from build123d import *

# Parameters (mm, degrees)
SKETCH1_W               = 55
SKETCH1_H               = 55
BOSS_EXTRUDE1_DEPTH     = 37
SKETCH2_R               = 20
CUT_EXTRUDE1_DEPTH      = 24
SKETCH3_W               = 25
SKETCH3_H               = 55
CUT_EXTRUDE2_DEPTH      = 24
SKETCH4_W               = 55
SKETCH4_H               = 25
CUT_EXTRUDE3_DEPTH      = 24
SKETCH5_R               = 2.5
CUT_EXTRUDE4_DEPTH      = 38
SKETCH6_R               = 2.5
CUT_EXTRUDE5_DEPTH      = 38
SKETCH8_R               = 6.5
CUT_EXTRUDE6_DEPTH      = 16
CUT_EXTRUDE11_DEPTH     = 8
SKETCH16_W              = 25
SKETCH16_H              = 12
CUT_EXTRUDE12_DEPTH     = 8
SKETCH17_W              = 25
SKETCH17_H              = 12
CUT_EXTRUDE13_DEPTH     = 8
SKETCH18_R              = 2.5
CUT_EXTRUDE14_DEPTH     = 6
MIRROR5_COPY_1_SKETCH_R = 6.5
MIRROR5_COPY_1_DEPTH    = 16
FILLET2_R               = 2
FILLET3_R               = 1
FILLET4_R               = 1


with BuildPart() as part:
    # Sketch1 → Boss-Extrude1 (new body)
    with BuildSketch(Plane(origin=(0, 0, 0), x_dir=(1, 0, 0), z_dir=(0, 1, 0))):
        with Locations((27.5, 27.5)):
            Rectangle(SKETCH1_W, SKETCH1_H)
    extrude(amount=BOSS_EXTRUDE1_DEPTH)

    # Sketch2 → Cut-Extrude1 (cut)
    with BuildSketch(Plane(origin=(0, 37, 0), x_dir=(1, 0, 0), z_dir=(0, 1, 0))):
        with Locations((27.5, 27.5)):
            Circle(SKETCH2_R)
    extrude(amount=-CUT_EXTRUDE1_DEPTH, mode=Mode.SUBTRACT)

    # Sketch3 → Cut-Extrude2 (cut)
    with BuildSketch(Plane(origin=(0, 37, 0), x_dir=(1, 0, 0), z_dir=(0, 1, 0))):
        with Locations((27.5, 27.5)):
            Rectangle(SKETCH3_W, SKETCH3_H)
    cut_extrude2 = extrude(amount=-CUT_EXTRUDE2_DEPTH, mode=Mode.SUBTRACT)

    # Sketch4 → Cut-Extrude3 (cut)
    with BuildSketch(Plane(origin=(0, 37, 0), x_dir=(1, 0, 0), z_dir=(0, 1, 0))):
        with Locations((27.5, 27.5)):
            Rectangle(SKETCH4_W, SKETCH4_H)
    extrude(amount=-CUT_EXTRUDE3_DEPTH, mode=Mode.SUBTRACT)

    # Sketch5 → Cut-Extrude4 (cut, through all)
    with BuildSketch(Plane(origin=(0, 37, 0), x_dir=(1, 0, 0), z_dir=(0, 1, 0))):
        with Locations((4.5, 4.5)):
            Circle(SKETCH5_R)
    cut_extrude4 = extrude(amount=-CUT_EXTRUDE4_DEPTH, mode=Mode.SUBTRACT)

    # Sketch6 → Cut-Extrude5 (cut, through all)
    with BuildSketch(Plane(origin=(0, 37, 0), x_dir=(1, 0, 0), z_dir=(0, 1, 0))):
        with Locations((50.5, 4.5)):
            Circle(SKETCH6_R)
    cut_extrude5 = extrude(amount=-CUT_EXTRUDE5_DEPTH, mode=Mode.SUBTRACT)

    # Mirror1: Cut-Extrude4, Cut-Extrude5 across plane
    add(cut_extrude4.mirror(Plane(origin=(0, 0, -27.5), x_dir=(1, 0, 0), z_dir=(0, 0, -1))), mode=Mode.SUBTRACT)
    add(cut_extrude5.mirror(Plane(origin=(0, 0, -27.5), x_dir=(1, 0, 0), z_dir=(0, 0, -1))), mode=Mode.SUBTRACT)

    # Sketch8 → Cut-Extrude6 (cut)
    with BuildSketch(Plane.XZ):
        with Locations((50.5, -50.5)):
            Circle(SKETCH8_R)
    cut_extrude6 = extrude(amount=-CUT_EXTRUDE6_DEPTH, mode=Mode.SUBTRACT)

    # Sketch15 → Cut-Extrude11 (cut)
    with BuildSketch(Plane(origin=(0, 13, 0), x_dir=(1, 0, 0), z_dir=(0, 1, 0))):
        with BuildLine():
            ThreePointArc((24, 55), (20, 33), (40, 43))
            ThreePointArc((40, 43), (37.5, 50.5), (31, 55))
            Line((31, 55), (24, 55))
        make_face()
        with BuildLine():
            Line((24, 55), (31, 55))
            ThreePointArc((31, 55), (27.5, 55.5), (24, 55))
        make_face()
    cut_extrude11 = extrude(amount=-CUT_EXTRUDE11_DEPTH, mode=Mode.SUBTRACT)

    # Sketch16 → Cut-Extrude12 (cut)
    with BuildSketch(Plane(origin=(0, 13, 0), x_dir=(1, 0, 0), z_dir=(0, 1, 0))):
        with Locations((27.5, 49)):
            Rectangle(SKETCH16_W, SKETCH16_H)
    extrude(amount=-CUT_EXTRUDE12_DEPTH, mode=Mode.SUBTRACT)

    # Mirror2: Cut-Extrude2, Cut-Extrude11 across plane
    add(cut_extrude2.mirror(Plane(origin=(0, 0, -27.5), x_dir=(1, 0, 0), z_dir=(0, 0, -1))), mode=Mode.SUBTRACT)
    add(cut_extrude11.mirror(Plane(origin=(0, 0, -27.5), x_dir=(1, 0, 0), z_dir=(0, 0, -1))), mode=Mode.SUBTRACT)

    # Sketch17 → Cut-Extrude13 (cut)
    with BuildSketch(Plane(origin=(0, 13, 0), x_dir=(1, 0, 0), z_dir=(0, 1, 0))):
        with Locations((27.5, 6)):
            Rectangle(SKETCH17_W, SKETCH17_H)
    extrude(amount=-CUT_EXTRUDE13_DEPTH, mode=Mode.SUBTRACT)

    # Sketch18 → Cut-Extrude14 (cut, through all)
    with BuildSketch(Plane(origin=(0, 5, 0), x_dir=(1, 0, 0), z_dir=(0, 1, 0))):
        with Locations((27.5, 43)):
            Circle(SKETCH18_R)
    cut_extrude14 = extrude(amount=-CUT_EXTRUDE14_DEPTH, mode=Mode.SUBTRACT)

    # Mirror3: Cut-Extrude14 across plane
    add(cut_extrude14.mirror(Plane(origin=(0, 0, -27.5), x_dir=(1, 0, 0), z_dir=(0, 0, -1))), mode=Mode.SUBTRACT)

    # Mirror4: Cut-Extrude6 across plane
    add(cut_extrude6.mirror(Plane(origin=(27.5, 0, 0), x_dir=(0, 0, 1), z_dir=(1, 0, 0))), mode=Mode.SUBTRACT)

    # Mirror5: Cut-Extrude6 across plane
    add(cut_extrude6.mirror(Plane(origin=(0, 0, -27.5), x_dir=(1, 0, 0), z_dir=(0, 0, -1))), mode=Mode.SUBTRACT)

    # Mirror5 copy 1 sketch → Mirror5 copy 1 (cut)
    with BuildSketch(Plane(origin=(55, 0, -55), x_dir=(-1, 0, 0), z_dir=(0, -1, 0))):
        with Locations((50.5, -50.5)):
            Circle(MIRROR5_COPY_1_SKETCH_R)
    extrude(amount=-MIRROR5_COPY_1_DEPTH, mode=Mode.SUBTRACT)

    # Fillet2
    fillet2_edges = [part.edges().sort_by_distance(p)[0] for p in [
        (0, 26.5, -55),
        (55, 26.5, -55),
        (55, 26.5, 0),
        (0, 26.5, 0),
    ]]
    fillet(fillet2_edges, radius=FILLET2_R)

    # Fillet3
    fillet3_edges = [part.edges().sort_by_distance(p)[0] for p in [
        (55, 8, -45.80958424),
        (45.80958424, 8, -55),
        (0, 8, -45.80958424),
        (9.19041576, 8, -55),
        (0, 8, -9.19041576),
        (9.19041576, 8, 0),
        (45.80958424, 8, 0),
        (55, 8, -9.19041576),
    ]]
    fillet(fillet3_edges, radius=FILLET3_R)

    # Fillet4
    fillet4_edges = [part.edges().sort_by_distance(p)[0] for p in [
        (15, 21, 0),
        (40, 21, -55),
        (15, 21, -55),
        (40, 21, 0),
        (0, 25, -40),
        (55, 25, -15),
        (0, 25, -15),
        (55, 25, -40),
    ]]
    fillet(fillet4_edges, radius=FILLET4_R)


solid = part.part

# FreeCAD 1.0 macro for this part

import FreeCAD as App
import Part
import Sketcher
from FreeCAD import Vector
Q = App.Units.Quantity


def edges_at(feature, points):
    """Names of the edges that pass closest to the given points."""
    edges = feature.Shape.Edges
    near = lambda p: min(range(len(edges)), key=lambda i: edges[i].distToShape(Part.Vertex(*p))[0])
    return sorted({f"Edge{near(p) + 1}" for p in points})

doc = App.newDocument("Part")
body = doc.addObject("PartDesign::Body", "Body")

sketch1 = body.newObject("Sketcher::SketchObject", "Sketch")
sketch1.AttachmentSupport = (doc.getObject("XZ_Plane"), [""])
sketch1.MapMode = "FlatFace"
sketch1.addGeometry([
    Part.LineSegment(Vector(0, -55, 0), Vector(0, 0, 0)),
    Part.LineSegment(Vector(0, 0, 0), Vector(55, 0, 0)),
    Part.LineSegment(Vector(55, 0, 0), Vector(55, -55, 0)),
    Part.LineSegment(Vector(55, -55, 0), Vector(0, -55, 0)),
], False)
sketch1.addConstraint([
    Sketcher.Constraint("Coincident", 0, 2, 1, 1),
    Sketcher.Constraint("Coincident", 1, 2, 2, 1),
    Sketcher.Constraint("Coincident", 2, 2, 3, 1),
    Sketcher.Constraint("Coincident", 3, 2, 0, 1),
    Sketcher.Constraint("Vertical", 0),
    Sketcher.Constraint("Horizontal", 1),
    Sketcher.Constraint("Vertical", 2),
    Sketcher.Constraint("Horizontal", 3),
    Sketcher.Constraint("Coincident", 0, 2, -1, 1),
    Sketcher.Constraint("Equal", 3, 0),
    Sketcher.Constraint("DistanceX", 1, 1, 1, 2, Q("55 mm")),
])
pad1 = body.newObject("PartDesign::Pad", "Pad")
pad1.Profile = sketch1
pad1.Length = 37
pad1.Reversed = True

sketch2 = body.newObject("Sketcher::SketchObject", "Sketch001")
sketch2.AttachmentSupport = (doc.getObject("XZ_Plane"), [""])
sketch2.MapMode = "FlatFace"
sketch2.AttachmentOffset = App.Placement(Vector(0, 0, -37), App.Rotation())
sketch2.addGeometry(Part.Circle(Vector(28, -28, 0), Vector(0, 0, 1), 20), False)
sketch2.addConstraint([
    Sketcher.Constraint("Diameter", 0, Q("40 mm")),
    Sketcher.Constraint("DistanceX", -1, 1, 0, 3, Q("27.5 mm")),
    Sketcher.Constraint("DistanceY", 0, 3, -1, 1, Q("27.5 mm")),
])
pocket1 = body.newObject("PartDesign::Pocket", "Pocket")
pocket1.Profile = sketch2
pocket1.Length = 24
pocket1.Reversed = True

sketch3 = body.newObject("Sketcher::SketchObject", "Sketch002")
sketch3.AttachmentSupport = (doc.getObject("XZ_Plane"), [""])
sketch3.MapMode = "FlatFace"
sketch3.AttachmentOffset = App.Placement(Vector(0, 0, -37), App.Rotation())
sketch3.addGeometry([
    Part.LineSegment(Vector(15, -55, 0), Vector(15, 0, 0)),
    Part.LineSegment(Vector(15, 0, 0), Vector(40, 0, 0)),
    Part.LineSegment(Vector(40, 0, 0), Vector(40, -55, 0)),
    Part.LineSegment(Vector(40, -55, 0), Vector(15, -55, 0)),
], False)
sketch3.addConstraint([
    Sketcher.Constraint("Coincident", 0, 2, 1, 1),
    Sketcher.Constraint("Coincident", 1, 2, 2, 1),
    Sketcher.Constraint("Coincident", 2, 2, 3, 1),
    Sketcher.Constraint("Coincident", 3, 2, 0, 1),
    Sketcher.Constraint("Vertical", 0),
    Sketcher.Constraint("Horizontal", 1),
    Sketcher.Constraint("Vertical", 2),
    Sketcher.Constraint("Horizontal", 3),
    Sketcher.Constraint("PointOnObject", 0, 2, -1),
    Sketcher.Constraint("DistanceX", 1, 1, 1, 2, Q("25 mm")),
    Sketcher.Constraint("DistanceY", 0, 1, 0, 2, Q("55 mm")),
    Sketcher.Constraint("DistanceX", -1, 1, 0, 2, Q("15 mm")),
])
pocket2 = body.newObject("PartDesign::Pocket", "Pocket001")
pocket2.Profile = sketch3
pocket2.Length = 24
pocket2.Reversed = True

sketch4 = body.newObject("Sketcher::SketchObject", "Sketch003")
sketch4.AttachmentSupport = (doc.getObject("XZ_Plane"), [""])
sketch4.MapMode = "FlatFace"
sketch4.AttachmentOffset = App.Placement(Vector(0, 0, -37), App.Rotation())
sketch4.addGeometry([
    Part.LineSegment(Vector(0, -40, 0), Vector(0, -15, 0)),
    Part.LineSegment(Vector(0, -15, 0), Vector(55, -15, 0)),
    Part.LineSegment(Vector(55, -15, 0), Vector(55, -40, 0)),
    Part.LineSegment(Vector(55, -40, 0), Vector(0, -40, 0)),
], False)
sketch4.addConstraint([
    Sketcher.Constraint("Coincident", 0, 2, 1, 1),
    Sketcher.Constraint("Coincident", 1, 2, 2, 1),
    Sketcher.Constraint("Coincident", 2, 2, 3, 1),
    Sketcher.Constraint("Coincident", 3, 2, 0, 1),
    Sketcher.Constraint("Vertical", 0),
    Sketcher.Constraint("Horizontal", 1),
    Sketcher.Constraint("Vertical", 2),
    Sketcher.Constraint("Horizontal", 3),
    Sketcher.Constraint("PointOnObject", 0, 2, -2),
    Sketcher.Constraint("DistanceX", 1, 1, 1, 2, Q("55 mm")),
    Sketcher.Constraint("DistanceY", 0, 1, 0, 2, Q("25 mm")),
    Sketcher.Constraint("DistanceY", 0, 2, -1, 1, Q("15 mm")),
])
pocket3 = body.newObject("PartDesign::Pocket", "Pocket002")
pocket3.Profile = sketch4
pocket3.Length = 24
pocket3.Reversed = True

sketch5 = body.newObject("Sketcher::SketchObject", "Sketch004")
sketch5.AttachmentSupport = (doc.getObject("XZ_Plane"), [""])
sketch5.MapMode = "FlatFace"
sketch5.AttachmentOffset = App.Placement(Vector(0, 0, -37), App.Rotation())
sketch5.addGeometry(Part.Circle(Vector(4.5, -4.5, 0), Vector(0, 0, 1), 2.5), False)
sketch5.addConstraint([
    Sketcher.Constraint("Diameter", 0, Q("5 mm")),
    Sketcher.Constraint("DistanceX", -1, 1, 0, 3, Q("4.5 mm")),
    Sketcher.Constraint("DistanceY", 0, 3, -1, 1, Q("4.5 mm")),
])
pocket4 = body.newObject("PartDesign::Pocket", "Pocket003")
pocket4.Profile = sketch5
pocket4.Type = "ThroughAll"
pocket4.Reversed = True

sketch6 = body.newObject("Sketcher::SketchObject", "Sketch005")
sketch6.AttachmentSupport = (doc.getObject("XZ_Plane"), [""])
sketch6.MapMode = "FlatFace"
sketch6.AttachmentOffset = App.Placement(Vector(0, 0, -37), App.Rotation())
sketch6.addGeometry(Part.Circle(Vector(50.5, -4.5, 0), Vector(0, 0, 1), 2.5), False)
sketch6.addConstraint([
    Sketcher.Constraint("Diameter", 0, Q("5 mm")),
    Sketcher.Constraint("DistanceX", -1, 1, 0, 3, Q("50.5 mm")),
    Sketcher.Constraint("DistanceY", 0, 3, -1, 1, Q("4.5 mm")),
])
pocket5 = body.newObject("PartDesign::Pocket", "Pocket004")
pocket5.Profile = sketch6
pocket5.Type = "ThroughAll"
pocket5.Reversed = True
doc.recompute()

datumplane = body.newObject("PartDesign::Plane", "DatumPlane")
datumplane.AttachmentSupport = (doc.getObject("XY_Plane"), [""])
datumplane.MapMode = "FlatFace"
datumplane.AttachmentOffset = App.Placement(Vector(0, 0, -27.5), App.Rotation())
mirrored = body.newObject("PartDesign::Mirrored", "Mirrored")
mirrored.Originals = [pocket4, pocket5]
mirrored.MirrorPlane = (datumplane, [""])
body.Tip = mirrored

sketch7 = body.newObject("Sketcher::SketchObject", "Sketch006")
sketch7.AttachmentSupport = (doc.getObject("XZ_Plane"), [""])
sketch7.MapMode = "FlatFace"
sketch7.addGeometry(Part.Circle(Vector(50, -50, 0), Vector(0, 0, 1), 6), False)
sketch7.addConstraint([
    Sketcher.Constraint("Diameter", 0, Q("13 mm")),
    Sketcher.Constraint("DistanceX", -1, 1, 0, 3, Q("50.5 mm")),
    Sketcher.Constraint("DistanceY", 0, 3, -1, 1, Q("50.5 mm")),
])
pocket6 = body.newObject("PartDesign::Pocket", "Pocket005")
pocket6.Profile = sketch7
pocket6.Length = 16

sketch8 = body.newObject("Sketcher::SketchObject", "Sketch007")
sketch8.AttachmentSupport = (doc.getObject("XZ_Plane"), [""])
sketch8.MapMode = "FlatFace"
sketch8.AttachmentOffset = App.Placement(Vector(0, 0, -13), App.Rotation())
sketch8.addGeometry(Part.Circle(Vector(28, -43, 0), Vector(0, 0, 1), 12), False)
sketch8.addConstraint([
    Sketcher.Constraint("Diameter", 0, Q("25 mm")),
    Sketcher.Constraint("DistanceY", 0, 3, -1, 1, Q("43 mm")),
    Sketcher.Constraint("DistanceX", -1, 1, 0, 3, Q("27.5 mm")),
])
pocket7 = body.newObject("PartDesign::Pocket", "Pocket006")
pocket7.Profile = sketch8
pocket7.Length = 8
pocket7.Reversed = True

sketch9 = body.newObject("Sketcher::SketchObject", "Sketch008")
sketch9.AttachmentSupport = (doc.getObject("XZ_Plane"), [""])
sketch9.MapMode = "FlatFace"
sketch9.AttachmentOffset = App.Placement(Vector(0, 0, -13), App.Rotation())
sketch9.addGeometry([
    Part.LineSegment(Vector(15, -55, 0), Vector(15, -43, 0)),
    Part.LineSegment(Vector(15, -43, 0), Vector(40, -43, 0)),
    Part.LineSegment(Vector(40, -43, 0), Vector(40, -55, 0)),
    Part.LineSegment(Vector(40, -55, 0), Vector(15, -55, 0)),
], False)
sketch9.addConstraint([
    Sketcher.Constraint("Coincident", 0, 2, 1, 1),
    Sketcher.Constraint("Coincident", 1, 2, 2, 1),
    Sketcher.Constraint("Coincident", 2, 2, 3, 1),
    Sketcher.Constraint("Coincident", 3, 2, 0, 1),
    Sketcher.Constraint("Vertical", 0),
    Sketcher.Constraint("Horizontal", 1),
    Sketcher.Constraint("Vertical", 2),
    Sketcher.Constraint("Horizontal", 3),
    Sketcher.Constraint("DistanceX", 1, 1, 1, 2, Q("25 mm")),
    Sketcher.Constraint("DistanceY", 0, 1, 0, 2, Q("12 mm")),
    Sketcher.Constraint("DistanceX", -1, 1, 0, 2, Q("15 mm")),
    Sketcher.Constraint("DistanceY", 0, 2, -1, 1, Q("43 mm")),
])
pocket8 = body.newObject("PartDesign::Pocket", "Pocket007")
pocket8.Profile = sketch9
pocket8.Length = 8
pocket8.Reversed = True
doc.recompute()

datumplane2 = body.newObject("PartDesign::Plane", "DatumPlane001")
datumplane2.AttachmentSupport = (doc.getObject("XY_Plane"), [""])
datumplane2.MapMode = "FlatFace"
datumplane2.AttachmentOffset = App.Placement(Vector(0, 0, -27.5), App.Rotation())
mirrored2 = body.newObject("PartDesign::Mirrored", "Mirrored001")
mirrored2.Originals = [pocket2, pocket7]
mirrored2.MirrorPlane = (datumplane2, [""])
body.Tip = mirrored2

sketch10 = body.newObject("Sketcher::SketchObject", "Sketch009")
sketch10.AttachmentSupport = (doc.getObject("XZ_Plane"), [""])
sketch10.MapMode = "FlatFace"
sketch10.AttachmentOffset = App.Placement(Vector(0, 0, -13), App.Rotation())
sketch10.addGeometry([
    Part.LineSegment(Vector(15, -12, 0), Vector(15, 0, 0)),
    Part.LineSegment(Vector(15, 0, 0), Vector(40, 0, 0)),
    Part.LineSegment(Vector(40, 0, 0), Vector(40, -12, 0)),
    Part.LineSegment(Vector(40, -12, 0), Vector(15, -12, 0)),
], False)
sketch10.addConstraint([
    Sketcher.Constraint("Coincident", 0, 2, 1, 1),
    Sketcher.Constraint("Coincident", 1, 2, 2, 1),
    Sketcher.Constraint("Coincident", 2, 2, 3, 1),
    Sketcher.Constraint("Coincident", 3, 2, 0, 1),
    Sketcher.Constraint("Vertical", 0),
    Sketcher.Constraint("Horizontal", 1),
    Sketcher.Constraint("Vertical", 2),
    Sketcher.Constraint("Horizontal", 3),
    Sketcher.Constraint("PointOnObject", 0, 2, -1),
    Sketcher.Constraint("DistanceX", 1, 1, 1, 2, Q("25 mm")),
    Sketcher.Constraint("DistanceY", 0, 1, 0, 2, Q("12 mm")),
    Sketcher.Constraint("DistanceX", -1, 1, 0, 2, Q("15 mm")),
])
pocket9 = body.newObject("PartDesign::Pocket", "Pocket008")
pocket9.Profile = sketch10
pocket9.Length = 8
pocket9.Reversed = True

sketch11 = body.newObject("Sketcher::SketchObject", "Sketch010")
sketch11.AttachmentSupport = (doc.getObject("XZ_Plane"), [""])
sketch11.MapMode = "FlatFace"
sketch11.AttachmentOffset = App.Placement(Vector(0, 0, -5), App.Rotation())
sketch11.addGeometry(Part.Circle(Vector(27.5, -43, 0), Vector(0, 0, 1), 2.5), False)
sketch11.addConstraint([
    Sketcher.Constraint("Diameter", 0, Q("5 mm")),
    Sketcher.Constraint("DistanceY", 0, 3, -1, 1, Q("43 mm")),
    Sketcher.Constraint("DistanceX", -1, 1, 0, 3, Q("27.5 mm")),
])
pocket10 = body.newObject("PartDesign::Pocket", "Pocket009")
pocket10.Profile = sketch11
pocket10.Type = "ThroughAll"
pocket10.Reversed = True
doc.recompute()

datumplane3 = body.newObject("PartDesign::Plane", "DatumPlane002")
datumplane3.AttachmentSupport = (doc.getObject("XY_Plane"), [""])
datumplane3.MapMode = "FlatFace"
datumplane3.AttachmentOffset = App.Placement(Vector(0, 0, -27.5), App.Rotation())
mirrored3 = body.newObject("PartDesign::Mirrored", "Mirrored002")
mirrored3.Originals = [pocket10]
mirrored3.MirrorPlane = (datumplane3, [""])
body.Tip = mirrored3
doc.recompute()

datumplane4 = body.newObject("PartDesign::Plane", "DatumPlane003")
datumplane4.AttachmentSupport = (doc.getObject("YZ_Plane"), [""])
datumplane4.MapMode = "FlatFace"
datumplane4.AttachmentOffset = App.Placement(Vector(0, 0, 27.5), App.Rotation())
mirrored4 = body.newObject("PartDesign::Mirrored", "Mirrored003")
mirrored4.Originals = [pocket6]
mirrored4.MirrorPlane = (datumplane4, [""])
body.Tip = mirrored4
doc.recompute()

datumplane5 = body.newObject("PartDesign::Plane", "DatumPlane004")
datumplane5.AttachmentSupport = (doc.getObject("XY_Plane"), [""])
datumplane5.MapMode = "FlatFace"
datumplane5.AttachmentOffset = App.Placement(Vector(0, 0, -27.5), App.Rotation())
mirrored5 = body.newObject("PartDesign::Mirrored", "Mirrored004")
mirrored5.Originals = [pocket6]
mirrored5.MirrorPlane = (datumplane5, [""])
body.Tip = mirrored5

sketch12 = body.newObject("Sketcher::SketchObject", "Sketch011")
sketch12.AttachmentSupport = (doc.getObject("XZ_Plane"), [""])
sketch12.MapMode = "FlatFace"
sketch12.addGeometry(Part.Circle(Vector(4, -4, 0), Vector(0, 0, 1), 6), False)
sketch12.addConstraint([
    Sketcher.Constraint("Diameter", 0, Q("13 mm")),
    Sketcher.Constraint("DistanceX", -1, 1, 0, 3, Q("4.5 mm")),
    Sketcher.Constraint("DistanceY", 0, 3, -1, 1, Q("4.5 mm")),
])
pocket11 = body.newObject("PartDesign::Pocket", "Pocket010")
pocket11.Profile = sketch12
pocket11.Length = 16
doc.recompute()

fillet = body.newObject("PartDesign::Fillet", "Fillet")
fillet.Base = (pocket11, edges_at(pocket11, [
    (0, 26.5, -55),
    (55, 26.5, -55),
    (55, 26.5, 0),
    (0, 26.5, 0),
]))
fillet.Radius = 2
doc.recompute()

fillet2 = body.newObject("PartDesign::Fillet", "Fillet001")
fillet2.Base = (fillet, edges_at(fillet, [
    (55, 8, -45.81),
    (45.81, 8, -55),
    (0, 8, -45.81),
    (9.19, 8, -55),
    (0, 8, -9.19),
    (9.19, 8, 0),
    (45.81, 8, 0),
    (55, 8, -9.19),
]))
fillet2.Radius = 1
doc.recompute()

fillet3 = body.newObject("PartDesign::Fillet", "Fillet002")
fillet3.Base = (fillet2, edges_at(fillet2, [
    (15, 21, 0),
    (40, 21, -55),
    (15, 21, -55),
    (40, 21, 0),
    (0, 25, -40),
    (55, 25, -15),
    (0, 25, -15),
    (55, 25, -40),
]))
fillet3.Radius = 1

doc.recompute()
